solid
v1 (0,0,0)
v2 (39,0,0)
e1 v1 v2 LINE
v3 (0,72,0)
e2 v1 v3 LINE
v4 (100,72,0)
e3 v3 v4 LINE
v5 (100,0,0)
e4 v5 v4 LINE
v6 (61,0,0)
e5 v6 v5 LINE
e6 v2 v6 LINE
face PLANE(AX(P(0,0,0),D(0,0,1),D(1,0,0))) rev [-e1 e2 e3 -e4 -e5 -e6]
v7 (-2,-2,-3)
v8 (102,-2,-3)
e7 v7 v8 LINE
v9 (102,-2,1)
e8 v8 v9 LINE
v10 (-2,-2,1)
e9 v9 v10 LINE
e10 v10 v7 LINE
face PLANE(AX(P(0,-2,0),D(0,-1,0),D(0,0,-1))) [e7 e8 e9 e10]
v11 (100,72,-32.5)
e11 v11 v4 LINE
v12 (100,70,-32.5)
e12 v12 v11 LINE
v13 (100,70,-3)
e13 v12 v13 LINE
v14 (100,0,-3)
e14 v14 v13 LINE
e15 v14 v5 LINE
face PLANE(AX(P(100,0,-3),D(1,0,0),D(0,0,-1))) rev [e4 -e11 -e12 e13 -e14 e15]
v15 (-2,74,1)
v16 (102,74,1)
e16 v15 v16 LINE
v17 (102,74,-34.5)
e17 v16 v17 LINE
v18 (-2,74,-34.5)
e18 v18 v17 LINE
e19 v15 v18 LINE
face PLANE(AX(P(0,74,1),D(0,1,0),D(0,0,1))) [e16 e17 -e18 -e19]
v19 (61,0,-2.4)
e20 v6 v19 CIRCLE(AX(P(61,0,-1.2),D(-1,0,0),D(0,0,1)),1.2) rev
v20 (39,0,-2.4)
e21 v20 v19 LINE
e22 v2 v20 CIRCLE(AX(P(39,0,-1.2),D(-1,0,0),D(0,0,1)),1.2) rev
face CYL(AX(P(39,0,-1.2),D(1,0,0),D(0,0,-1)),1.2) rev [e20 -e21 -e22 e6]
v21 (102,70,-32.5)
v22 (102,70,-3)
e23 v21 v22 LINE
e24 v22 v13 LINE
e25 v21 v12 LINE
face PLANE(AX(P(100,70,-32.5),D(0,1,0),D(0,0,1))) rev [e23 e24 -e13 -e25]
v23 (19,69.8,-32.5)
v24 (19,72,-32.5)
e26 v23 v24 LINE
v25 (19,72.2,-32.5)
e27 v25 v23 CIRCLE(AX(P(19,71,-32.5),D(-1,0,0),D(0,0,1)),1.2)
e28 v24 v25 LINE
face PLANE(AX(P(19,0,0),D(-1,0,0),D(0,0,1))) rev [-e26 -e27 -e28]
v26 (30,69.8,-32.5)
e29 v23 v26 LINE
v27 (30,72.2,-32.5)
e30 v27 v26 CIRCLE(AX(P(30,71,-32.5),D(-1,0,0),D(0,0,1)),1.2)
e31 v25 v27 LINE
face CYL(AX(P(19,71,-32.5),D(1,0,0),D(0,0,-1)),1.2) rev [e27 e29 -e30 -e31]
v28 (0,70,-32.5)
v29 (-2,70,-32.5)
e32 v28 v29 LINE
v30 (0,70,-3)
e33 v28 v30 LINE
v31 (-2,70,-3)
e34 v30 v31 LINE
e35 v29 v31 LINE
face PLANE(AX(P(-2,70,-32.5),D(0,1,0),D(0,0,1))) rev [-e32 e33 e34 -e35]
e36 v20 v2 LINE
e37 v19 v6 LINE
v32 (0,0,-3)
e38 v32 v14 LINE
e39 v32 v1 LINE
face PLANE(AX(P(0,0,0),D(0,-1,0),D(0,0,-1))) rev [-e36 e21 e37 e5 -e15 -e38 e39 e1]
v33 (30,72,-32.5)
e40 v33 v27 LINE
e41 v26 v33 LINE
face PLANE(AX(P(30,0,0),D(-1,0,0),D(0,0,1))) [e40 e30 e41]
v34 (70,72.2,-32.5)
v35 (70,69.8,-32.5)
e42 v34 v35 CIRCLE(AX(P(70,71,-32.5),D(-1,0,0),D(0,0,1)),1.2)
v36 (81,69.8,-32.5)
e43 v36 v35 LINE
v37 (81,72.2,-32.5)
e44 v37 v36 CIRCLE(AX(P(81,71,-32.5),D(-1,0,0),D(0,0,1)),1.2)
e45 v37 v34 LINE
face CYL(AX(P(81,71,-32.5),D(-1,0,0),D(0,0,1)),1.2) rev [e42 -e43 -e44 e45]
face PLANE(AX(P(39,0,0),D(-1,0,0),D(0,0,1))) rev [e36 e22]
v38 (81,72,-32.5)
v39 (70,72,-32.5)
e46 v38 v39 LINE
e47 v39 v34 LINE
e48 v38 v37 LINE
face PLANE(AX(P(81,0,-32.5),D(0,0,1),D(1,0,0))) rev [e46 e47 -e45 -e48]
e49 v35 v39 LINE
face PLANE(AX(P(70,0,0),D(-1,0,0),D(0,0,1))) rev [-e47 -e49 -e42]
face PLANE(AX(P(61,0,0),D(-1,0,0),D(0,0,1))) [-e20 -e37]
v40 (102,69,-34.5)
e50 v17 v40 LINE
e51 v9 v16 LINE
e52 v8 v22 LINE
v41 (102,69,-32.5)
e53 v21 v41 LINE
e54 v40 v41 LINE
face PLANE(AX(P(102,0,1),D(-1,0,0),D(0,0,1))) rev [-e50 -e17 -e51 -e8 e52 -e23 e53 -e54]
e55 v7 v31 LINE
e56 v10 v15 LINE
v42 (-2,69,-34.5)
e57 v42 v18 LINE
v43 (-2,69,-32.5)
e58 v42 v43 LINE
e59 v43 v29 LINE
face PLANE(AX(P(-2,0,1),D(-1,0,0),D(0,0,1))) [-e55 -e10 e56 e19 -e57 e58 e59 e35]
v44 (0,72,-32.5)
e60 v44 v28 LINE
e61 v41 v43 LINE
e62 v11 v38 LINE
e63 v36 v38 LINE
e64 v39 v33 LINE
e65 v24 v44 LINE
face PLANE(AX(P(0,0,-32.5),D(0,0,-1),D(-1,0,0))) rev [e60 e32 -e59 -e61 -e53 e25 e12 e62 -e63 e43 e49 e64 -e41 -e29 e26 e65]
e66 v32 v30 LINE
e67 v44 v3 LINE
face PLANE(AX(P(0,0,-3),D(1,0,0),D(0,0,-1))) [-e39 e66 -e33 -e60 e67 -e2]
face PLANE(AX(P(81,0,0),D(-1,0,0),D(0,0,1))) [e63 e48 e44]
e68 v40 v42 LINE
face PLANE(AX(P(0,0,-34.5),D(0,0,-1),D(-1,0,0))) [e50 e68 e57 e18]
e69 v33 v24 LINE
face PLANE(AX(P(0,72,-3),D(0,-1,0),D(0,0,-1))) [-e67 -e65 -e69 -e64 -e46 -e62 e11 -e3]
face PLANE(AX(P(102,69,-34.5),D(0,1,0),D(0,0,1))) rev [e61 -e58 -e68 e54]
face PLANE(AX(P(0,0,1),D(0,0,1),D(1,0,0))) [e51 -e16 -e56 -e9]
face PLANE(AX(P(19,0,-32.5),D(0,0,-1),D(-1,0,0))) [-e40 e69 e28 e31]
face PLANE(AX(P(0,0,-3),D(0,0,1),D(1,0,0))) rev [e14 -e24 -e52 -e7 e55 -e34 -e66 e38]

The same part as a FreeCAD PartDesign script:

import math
import FreeCAD as App
import Part
import Sketcher

V = App.Vector
Q = App.Units.Quantity

doc = App.newDocument("Part")
body = doc.addObject("PartDesign::Body", "Body")

sketch1 = body.newObject("Sketcher::SketchObject", "Sketch")
sketch1.AttachmentSupport = (doc.getObject("XY_Plane"), [""])
sketch1.MapMode = "FlatFace"
sketch1.addGeometry([
    Part.LineSegment(V(-2, 74, 0), V(-2, 0, 0)),
    Part.LineSegment(V(-2, 0, 0), V(102, 0, 0)),
    Part.LineSegment(V(102, 0, 0), V(102, 74, 0)),
    Part.LineSegment(V(102, 74, 0), V(-2, 74, 0)),
], False)
sketch1.addConstraint([
    Sketcher.Constraint("Coincident", 0, 2, 1, 1),
    Sketcher.Constraint("Coincident", 1, 2, 2, 1),
    Sketcher.Constraint("Coincident", 2, 2, 3, 1),
    Sketcher.Constraint("Coincident", 3, 2, 0, 1),
    Sketcher.Constraint("Vertical", 0),
    Sketcher.Constraint("Horizontal", 1),
    Sketcher.Constraint("Vertical", 2),
    Sketcher.Constraint("Horizontal", 3),
    Sketcher.Constraint("PointOnObject", 0, 2, -1),
    Sketcher.Constraint("DistanceX", 1, 1, 1, 2, Q("104 mm")),
    Sketcher.Constraint("DistanceY", 0, 2, 0, 1, Q("74 mm")),
    Sketcher.Constraint("DistanceX", 0, 2, -1, 1, Q("2 mm")),
])
pad1 = body.newObject("PartDesign::Pad", "Pad")
pad1.Profile = sketch1
pad1.Length = 1

sketch2 = body.newObject("Sketcher::SketchObject", "Sketch001")
sketch2.AttachmentSupport = (doc.getObject("XY_Plane"), [""])
sketch2.MapMode = "FlatFace"
sketch2.addGeometry([
    Part.LineSegment(V(-2, 74, 0), V(-2, 0, 0)),
    Part.LineSegment(V(-2, 0, 0), V(0, 0, 0)),
    Part.LineSegment(V(0, 0, 0), V(0, 72, 0)),
    Part.LineSegment(V(0, 72, 0), V(100, 72, 0)),
    Part.LineSegment(V(100, 72, 0), V(100, 0, 0)),
    Part.LineSegment(V(100, 0, 0), V(102, 0, 0)),
    Part.LineSegment(V(102, 0, 0), V(102, 74, 0)),
    Part.LineSegment(V(102, 74, 0), V(-2, 74, 0)),
], False)
sketch2.addConstraint([
    Sketcher.Constraint("Coincident", 0, 2, 1, 1),
    Sketcher.Constraint("Coincident", 1, 2, 2, 1),
    Sketcher.Constraint("Coincident", 2, 2, 3, 1),
    Sketcher.Constraint("Coincident", 3, 2, 4, 1),
    Sketcher.Constraint("Coincident", 4, 2, 5, 1),
    Sketcher.Constraint("Coincident", 5, 2, 6, 1),
    Sketcher.Constraint("Coincident", 6, 2, 7, 1),
    Sketcher.Constraint("Coincident", 7, 2, 0, 1),
    Sketcher.Constraint("Vertical", 0),
    Sketcher.Constraint("Horizontal", 1),
    Sketcher.Constraint("Vertical", 2),
    Sketcher.Constraint("Horizontal", 3),
    Sketcher.Constraint("Vertical", 4),
    Sketcher.Constraint("Horizontal", 5),
    Sketcher.Constraint("Vertical", 6),
    Sketcher.Constraint("Horizontal", 7),
    Sketcher.Constraint("Coincident", 1, 2, -1, 1),
    Sketcher.Constraint("PointOnObject", 4, 2, -1),
    Sketcher.Constraint("Equal", 1, 5),
    Sketcher.Constraint("DistanceX", 1, 1, 1, 2, Q("2 mm")),
    Sketcher.Constraint("DistanceX", 3, 1, 3, 2, Q("100 mm")),
    Sketcher.Constraint("DistanceY", 0, 2, 0, 1, Q("74 mm")),
    Sketcher.Constraint("DistanceY", 2, 1, 2, 2, Q("72 mm")),
])
pad2 = body.newObject("PartDesign::Pad", "Pad001")
pad2.Profile = sketch2
pad2.Length = 3
pad2.Reversed = True

sketch3 = body.newObject("Sketcher::SketchObject", "Sketch002")
sketch3.AttachmentSupport = (doc.getObject("XY_Plane"), [""])
sketch3.MapMode = "FlatFace"
sketch3.AttachmentOffset = App.Placement(V(0, 0, -3), App.Rotation())
sketch3.addGeometry([
    Part.LineSegment(V(-2, 74, 0), V(102, 74, 0)),
    Part.LineSegment(V(102, 74, 0), V(102, 70, 0)),
    Part.LineSegment(V(102, 70, 0), V(100, 70, 0)),
    Part.LineSegment(V(100, 70, 0), V(100, 72, 0)),
    Part.LineSegment(V(100, 72, 0), V(0, 72, 0)),
    Part.LineSegment(V(0, 72, 0), V(0, 70, 0)),
    Part.LineSegment(V(0, 70, 0), V(-2, 70, 0)),
    Part.LineSegment(V(-2, 70, 0), V(-2, 74, 0)),
], False)
sketch3.addConstraint([
    Sketcher.Constraint("Coincident", 0, 2, 1, 1),
    Sketcher.Constraint("Coincident", 1, 2, 2, 1),
    Sketcher.Constraint("Coincident", 2, 2, 3, 1),
    Sketcher.Constraint("Coincident", 3, 2, 4, 1),
    Sketcher.Constraint("Coincident", 4, 2, 5, 1),
    Sketcher.Constraint("Coincident", 5, 2, 6, 1),
    Sketcher.Constraint("Coincident", 6, 2, 7, 1),
    Sketcher.Constraint("Coincident", 7, 2, 0, 1),
    Sketcher.Constraint("Horizontal", 0),
    Sketcher.Constraint("Vertical", 1),
    Sketcher.Constraint("Horizontal", 2),
    Sketcher.Constraint("Vertical", 3),
    Sketcher.Constraint("Horizontal", 4),
    Sketcher.Constraint("Vertical", 5),
    Sketcher.Constraint("Horizontal", 6),
    Sketcher.Constraint("Vertical", 7),
    Sketcher.Constraint("PointOnObject", 4, 2, -2),
    Sketcher.Constraint("Horizontal", 2, 2, 5, 2),
    Sketcher.Constraint("Equal", 2, 6),
    Sketcher.Constraint("Equal", 6, 3),
    Sketcher.Constraint("DistanceX", 0, 1, 0, 2, Q("104 mm")),
    Sketcher.Constraint("DistanceX", 2, 2, 2, 1, Q("2 mm")),
    Sketcher.Constraint("DistanceY", 1, 2, 1, 1, Q("4 mm")),
    Sketcher.Constraint("DistanceY", -1, 1, 0, 2, Q("74 mm")),
])
pad3 = body.newObject("PartDesign::Pad", "Pad002")
pad3.Profile = sketch3
pad3.Length = 29.5
pad3.Reversed = True

sketch4 = body.newObject("Sketcher::SketchObject", "Sketch003")
sketch4.AttachmentSupport = (doc.getObject("XZ_Plane"), [""])
sketch4.MapMode = "FlatFace"
sketch4.addGeometry([
    Part.LineSegment(V(-2, 1, 0), V(-2, -3, 0)),
    Part.LineSegment(V(-2, -3, 0), V(102, -3, 0)),
    Part.LineSegment(V(102, -3, 0), V(102, 1, 0)),
    Part.LineSegment(V(102, 1, 0), V(-2, 1, 0)),
], False)
sketch4.addConstraint([
    Sketcher.Constraint("Coincident", 0, 2, 1, 1),
    Sketcher.Constraint("Coincident", 1, 2, 2, 1),
    Sketcher.Constraint("Coincident", 2, 2, 3, 1),
    Sketcher.Constraint("Coincident", 3, 2, 0, 1),
    Sketcher.Constraint("Vertical", 0),
    Sketcher.Constraint("Horizontal", 1),
    Sketcher.Constraint("Vertical", 2),
    Sketcher.Constraint("Horizontal", 3),
    Sketcher.Constraint("DistanceX", 1, 1, 1, 2, Q("104 mm")),
    Sketcher.Constraint("DistanceY", 0, 2, 0, 1, Q("4 mm")),
    Sketcher.Constraint("DistanceX", 0, 2, -1, 1, Q("2 mm")),
    Sketcher.Constraint("DistanceY", 0, 2, -1, 1, Q("3 mm")),
])
pad4 = body.newObject("PartDesign::Pad", "Pad003")
pad4.Profile = sketch4
pad4.Length = 2

sketch5 = body.newObject("Sketcher::SketchObject", "Sketch004")
sketch5.AttachmentSupport = (doc.getObject("YZ_Plane"), [""])
sketch5.MapMode = "FlatFace"
sketch5.AttachmentOffset = App.Placement(V(0, 0, 50), App.Rotation())
sketch5.addGeometry([
    Part.LineSegment(V(0, 0, 0), V(0, -2.4, 0)),
    Part.ArcOfCircle(Part.Circle(V(0, -1.2, 0), V(0, 0, 1), 1.2), math.radians(90), math.radians(270)),
], False)
sketch5.addConstraint([
    Sketcher.Constraint("Coincident", 0, 1, 1, 1),
    Sketcher.Constraint("Coincident", 1, 2, 0, 2),
    Sketcher.Constraint("Vertical", 0),
    Sketcher.Constraint("Coincident", 0, 1, -1, 1),
    Sketcher.Constraint("PointOnObject", 1, 3, -2),
    Sketcher.Constraint("Radius", 1, Q("1.2 mm")),
])
pocket1 = body.newObject("PartDesign::Pocket", "Pocket")
pocket1.Profile = sketch5
pocket1.Type = "TwoLengths"
pocket1.Length = 11
pocket1.Length2 = 11

sketch6 = body.newObject("Sketcher::SketchObject", "Sketch005")
sketch6.AttachmentSupport = (doc.getObject("XY_Plane"), [""])
sketch6.MapMode = "FlatFace"
sketch6.AttachmentOffset = App.Placement(V(0, 0, -32.5), App.Rotation())
sketch6.addGeometry([
    Part.LineSegment(V(102, 74, 0), V(102, 69, 0)),
    Part.LineSegment(V(102, 69, 0), V(-2, 69, 0)),
    Part.LineSegment(V(-2, 69, 0), V(-2, 74, 0)),
    Part.LineSegment(V(-2, 74, 0), V(102, 74, 0)),
], False)
sketch6.addConstraint([
    Sketcher.Constraint("Coincident", 0, 2, 1, 1),
    Sketcher.Constraint("Coincident", 1, 2, 2, 1),
    Sketcher.Constraint("Coincident", 2, 2, 3, 1),
    Sketcher.Constraint("Coincident", 3, 2, 0, 1),
    Sketcher.Constraint("Vertical", 0),
    Sketcher.Constraint("Horizontal", 1),
    Sketcher.Constraint("Vertical", 2),
    Sketcher.Constraint("Horizontal", 3),
    Sketcher.Constraint("DistanceX", 1, 2, 1, 1, Q("104 mm")),
    Sketcher.Constraint("DistanceY", 0, 2, 0, 1, Q("5 mm")),
    Sketcher.Constraint("DistanceX", -1, 1, 0, 2, Q("102 mm")),
    Sketcher.Constraint("DistanceY", -1, 1, 0, 2, Q("69 mm")),
])
pad5 = body.newObject("PartDesign::Pad", "Pad004")
pad5.Profile = sketch6
pad5.Length = 2
pad5.Reversed = True

sketch7 = body.newObject("Sketcher::SketchObject", "Sketch006")
sketch7.AttachmentSupport = (doc.getObject("YZ_Plane"), [""])
sketch7.MapMode = "FlatFace"
sketch7.AttachmentOffset = App.Placement(V(0, 0, 30), App.Rotation())
sketch7.addGeometry([
    Part.ArcOfCircle(Part.Circle(V(71, -32.5, 0), V(0, 0, 1), 1.2), math.radians(180), math.radians(360)),
    Part.LineSegment(V(69.8, -32.5, 0), V(72.2, -32.5, 0)),
], False)
sketch7.addConstraint([
    Sketcher.Constraint("Coincident", 0, 1, 1, 1),
    Sketcher.Constraint("Coincident", 1, 2, 0, 2),
    Sketcher.Constraint("Horizontal", 1),
    Sketcher.Constraint("Radius", 0, Q("1.2 mm")),
    Sketcher.Constraint("DistanceX", -1, 1, 0, 3, Q("71 mm")),
    Sketcher.Constraint("DistanceY", 0, 3, -1, 1, Q("32.5 mm")),
    Sketcher.Constraint("DistanceY", 0, 1, -1, 1, Q("32.5 mm")),
])
pocket2 = body.newObject("PartDesign::Pocket", "Pocket001")
pocket2.Profile = sketch7
pocket2.Length = 11

sketch8 = body.newObject("Sketcher::SketchObject", "Sketch007")
sketch8.AttachmentSupport = (doc.getObject("YZ_Plane"), [""])
sketch8.MapMode = "FlatFace"
sketch8.AttachmentOffset = App.Placement(V(0, 0, 81), App.Rotation())
sketch8.addGeometry([
    Part.ArcOfCircle(Part.Circle(V(71, -32.5, 0), V(0, 0, 1), 1.2), math.radians(180), math.radians(360)),
    Part.LineSegment(V(69.8, -32.5, 0), V(72.2, -32.5, 0)),
], False)
sketch8.addConstraint([
    Sketcher.Constraint("Coincident", 0, 1, 1, 1),
    Sketcher.Constraint("Coincident", 1, 2, 0, 2),
    Sketcher.Constraint("Horizontal", 1),
    Sketcher.Constraint("Radius", 0, Q("1.2 mm")),
    Sketcher.Constraint("DistanceX", -1, 1, 0, 3, Q("71 mm")),
    Sketcher.Constraint("DistanceY", 0, 3, -1, 1, Q("32.5 mm")),
    Sketcher.Constraint("DistanceY", 0, 1, -1, 1, Q("32.5 mm")),
])
pocket3 = body.newObject("PartDesign::Pocket", "Pocket002")
pocket3.Profile = sketch8
pocket3.Length = 11

doc.recompute()
